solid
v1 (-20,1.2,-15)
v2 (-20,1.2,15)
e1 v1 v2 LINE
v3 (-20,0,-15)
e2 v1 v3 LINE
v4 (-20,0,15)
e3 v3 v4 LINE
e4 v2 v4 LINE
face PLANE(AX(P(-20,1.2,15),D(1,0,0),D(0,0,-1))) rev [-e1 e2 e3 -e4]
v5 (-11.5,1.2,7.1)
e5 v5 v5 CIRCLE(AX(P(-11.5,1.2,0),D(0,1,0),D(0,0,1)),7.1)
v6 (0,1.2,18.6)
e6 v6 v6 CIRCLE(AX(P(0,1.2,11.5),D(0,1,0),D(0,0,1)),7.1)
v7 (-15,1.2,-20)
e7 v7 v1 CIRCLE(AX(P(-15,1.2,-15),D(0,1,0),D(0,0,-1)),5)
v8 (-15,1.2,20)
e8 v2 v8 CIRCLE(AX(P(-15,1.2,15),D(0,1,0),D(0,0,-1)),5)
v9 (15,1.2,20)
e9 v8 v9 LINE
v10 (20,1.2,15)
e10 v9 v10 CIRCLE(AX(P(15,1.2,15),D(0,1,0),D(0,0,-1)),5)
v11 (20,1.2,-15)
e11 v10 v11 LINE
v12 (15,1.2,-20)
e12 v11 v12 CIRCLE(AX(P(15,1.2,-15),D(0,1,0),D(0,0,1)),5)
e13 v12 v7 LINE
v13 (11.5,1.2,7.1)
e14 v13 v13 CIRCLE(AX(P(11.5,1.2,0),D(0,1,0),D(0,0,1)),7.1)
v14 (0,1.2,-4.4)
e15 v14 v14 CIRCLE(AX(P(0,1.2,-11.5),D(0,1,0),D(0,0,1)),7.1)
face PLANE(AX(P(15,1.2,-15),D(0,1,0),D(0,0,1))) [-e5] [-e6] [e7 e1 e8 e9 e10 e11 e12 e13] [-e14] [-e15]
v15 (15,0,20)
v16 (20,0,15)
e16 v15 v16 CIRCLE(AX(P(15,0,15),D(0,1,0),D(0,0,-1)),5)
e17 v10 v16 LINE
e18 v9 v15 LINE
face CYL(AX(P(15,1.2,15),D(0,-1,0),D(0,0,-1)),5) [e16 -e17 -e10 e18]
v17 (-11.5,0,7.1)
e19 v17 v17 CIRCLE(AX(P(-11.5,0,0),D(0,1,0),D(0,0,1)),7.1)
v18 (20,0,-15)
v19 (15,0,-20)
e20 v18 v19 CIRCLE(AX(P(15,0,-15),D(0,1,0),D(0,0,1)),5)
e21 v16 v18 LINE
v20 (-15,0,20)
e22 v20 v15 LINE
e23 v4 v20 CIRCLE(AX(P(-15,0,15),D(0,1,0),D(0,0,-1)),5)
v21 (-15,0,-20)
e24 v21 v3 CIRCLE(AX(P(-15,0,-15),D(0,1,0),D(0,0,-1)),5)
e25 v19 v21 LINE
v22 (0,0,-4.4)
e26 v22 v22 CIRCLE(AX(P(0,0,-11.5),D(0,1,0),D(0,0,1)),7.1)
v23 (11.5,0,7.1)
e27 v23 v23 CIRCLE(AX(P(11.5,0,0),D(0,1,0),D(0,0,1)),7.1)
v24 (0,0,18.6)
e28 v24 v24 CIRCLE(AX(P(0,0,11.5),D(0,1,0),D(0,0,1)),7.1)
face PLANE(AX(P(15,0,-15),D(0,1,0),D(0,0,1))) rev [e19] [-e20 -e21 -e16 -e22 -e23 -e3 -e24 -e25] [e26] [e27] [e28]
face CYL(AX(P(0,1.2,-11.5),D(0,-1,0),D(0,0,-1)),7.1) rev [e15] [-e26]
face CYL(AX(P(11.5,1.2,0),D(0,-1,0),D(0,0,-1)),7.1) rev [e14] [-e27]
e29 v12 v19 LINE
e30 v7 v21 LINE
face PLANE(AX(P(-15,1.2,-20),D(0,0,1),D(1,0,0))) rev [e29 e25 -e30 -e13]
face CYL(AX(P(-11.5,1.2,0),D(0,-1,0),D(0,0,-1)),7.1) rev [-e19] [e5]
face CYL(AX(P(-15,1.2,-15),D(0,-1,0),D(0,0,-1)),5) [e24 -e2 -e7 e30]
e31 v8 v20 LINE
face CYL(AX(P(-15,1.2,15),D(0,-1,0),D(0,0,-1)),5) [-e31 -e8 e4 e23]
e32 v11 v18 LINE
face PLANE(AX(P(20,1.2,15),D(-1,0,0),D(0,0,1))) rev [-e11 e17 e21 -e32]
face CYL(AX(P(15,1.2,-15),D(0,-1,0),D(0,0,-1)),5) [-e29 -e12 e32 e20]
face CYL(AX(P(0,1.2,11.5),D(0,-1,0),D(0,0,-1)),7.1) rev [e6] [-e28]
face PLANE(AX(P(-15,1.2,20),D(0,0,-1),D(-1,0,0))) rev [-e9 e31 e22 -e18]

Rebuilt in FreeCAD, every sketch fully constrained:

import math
import FreeCAD as App
import Part
import Sketcher

V = App.Vector
Q = App.Units.Quantity

doc = App.newDocument("Part")
params = doc.addObject("Spreadsheet::Sheet", "Params")
for row, (alias, value) in enumerate([
    ("sketch1_radius", "5 mm"),
    ("sketch1_diameter", "14.2 mm"),
    ("sketch1_width", "30 mm"),
    ("pad1_length", "1.2 mm"),
], start=1):
    params.set(f"A{row}", alias)
    params.set(f"B{row}", "=" + value)
    params.setAlias(f"B{row}", alias)

body = doc.addObject("PartDesign::Body", "Body")

# Sketch on XZ plane
sketch1 = body.newObject("Sketcher::SketchObject", "Sketch")
sketch1.AttachmentSupport = (doc.getObject("XZ_Plane"), [""])
sketch1.MapMode = "FlatFace"
sketch1.addGeometry([
    Part.LineSegment(V(-15, 20, 0), V(15, 20, 0)),  # 0
    Part.ArcOfCircle(Part.Circle(V(15, 15, 0), V(0, 0, 1), 5), math.radians(0), math.radians(90)),  # 1
    Part.LineSegment(V(20, 15, 0), V(20, -15, 0)),  # 2
    Part.ArcOfCircle(Part.Circle(V(15, -15, 0), V(0, 0, 1), 5), math.radians(-90), math.radians(0)),  # 3
    Part.LineSegment(V(15, -20, 0), V(-15, -20, 0)),  # 4
    Part.ArcOfCircle(Part.Circle(V(-15, -15, 0), V(0, 0, 1), 5), math.radians(180), math.radians(270)),  # 5
    Part.LineSegment(V(-20, -15, 0), V(-20, 15, 0)),  # 6
    Part.ArcOfCircle(Part.Circle(V(-15, 15, 0), V(0, 0, 1), 5), math.radians(90), math.radians(180)),  # 7
    Part.Circle(V(0, 12, 0), V(0, 0, 1), 7),  # 8
    Part.Circle(V(-12, 0, 0), V(0, 0, 1), 7),  # 9
    Part.Circle(V(0, -12, 0), V(0, 0, 1), 7),  # 10
    Part.Circle(V(12, 0, 0), V(0, 0, 1), 7),  # 11
], False)
sketch1.addConstraint([
    Sketcher.Constraint("Tangent", 0, 2, 1, 2),
    Sketcher.Constraint("Tangent", 1, 1, 2, 1),
    Sketcher.Constraint("Tangent", 2, 2, 3, 2),
    Sketcher.Constraint("Tangent", 3, 1, 4, 1),
    Sketcher.Constraint("Tangent", 4, 2, 5, 2),
    Sketcher.Constraint("Tangent", 5, 1, 6, 1),
    Sketcher.Constraint("Tangent", 6, 2, 7, 2),
    Sketcher.Constraint("Tangent", 7, 1, 0, 1),
    Sketcher.Constraint("Horizontal", 0),
    Sketcher.Constraint("Vertical", 2),
    Sketcher.Constraint("Horizontal", 4),
    Sketcher.Constraint("Vertical", 6),
    Sketcher.Constraint("Equal", 1, 3),
    Sketcher.Constraint("Equal", 3, 5),
    Sketcher.Constraint("Equal", 5, 7),
    Sketcher.Constraint("Equal", 8, 9),
    Sketcher.Constraint("Equal", 9, 10),
    Sketcher.Constraint("Equal", 10, 11),
    Sketcher.Constraint("Symmetric", 1, 3, 5, 3, -1, 1),
    Sketcher.Constraint("Symmetric", 8, 3, 10, 3, -1, 1),
    Sketcher.Constraint("Symmetric", 9, 3, 11, 3, -1, 1),
    Sketcher.Constraint("PointOnObject", 8, 3, -2),
    Sketcher.Constraint("PointOnObject", 9, 3, -1),
    Sketcher.Constraint("Equal", 4, 2),
    Sketcher.Constraint("Radius", 1, Q("5 mm")),
    Sketcher.Constraint("Diameter", 8, Q("14.2 mm")),
    Sketcher.Constraint("DistanceX", 0, 1, 0, 2, Q("30 mm")),
    Sketcher.Constraint("DistanceY", 10, 3, 8, 3, Q("23 mm")),
    Sketcher.Constraint("DistanceX", 9, 3, 11, 3, Q("23 mm")),
])
sketch1.setExpression("Constraints[24]", "Params.sketch1_radius")
sketch1.setExpression("Constraints[25]", "Params.sketch1_diameter")
sketch1.setExpression("Constraints[26]", "Params.sketch1_width")
pad1 = body.newObject("PartDesign::Pad", "Pad")
pad1.Profile = sketch1
pad1.setExpression("Length", "Params.pad1_length")
pad1.Reversed = True

doc.recompute()
